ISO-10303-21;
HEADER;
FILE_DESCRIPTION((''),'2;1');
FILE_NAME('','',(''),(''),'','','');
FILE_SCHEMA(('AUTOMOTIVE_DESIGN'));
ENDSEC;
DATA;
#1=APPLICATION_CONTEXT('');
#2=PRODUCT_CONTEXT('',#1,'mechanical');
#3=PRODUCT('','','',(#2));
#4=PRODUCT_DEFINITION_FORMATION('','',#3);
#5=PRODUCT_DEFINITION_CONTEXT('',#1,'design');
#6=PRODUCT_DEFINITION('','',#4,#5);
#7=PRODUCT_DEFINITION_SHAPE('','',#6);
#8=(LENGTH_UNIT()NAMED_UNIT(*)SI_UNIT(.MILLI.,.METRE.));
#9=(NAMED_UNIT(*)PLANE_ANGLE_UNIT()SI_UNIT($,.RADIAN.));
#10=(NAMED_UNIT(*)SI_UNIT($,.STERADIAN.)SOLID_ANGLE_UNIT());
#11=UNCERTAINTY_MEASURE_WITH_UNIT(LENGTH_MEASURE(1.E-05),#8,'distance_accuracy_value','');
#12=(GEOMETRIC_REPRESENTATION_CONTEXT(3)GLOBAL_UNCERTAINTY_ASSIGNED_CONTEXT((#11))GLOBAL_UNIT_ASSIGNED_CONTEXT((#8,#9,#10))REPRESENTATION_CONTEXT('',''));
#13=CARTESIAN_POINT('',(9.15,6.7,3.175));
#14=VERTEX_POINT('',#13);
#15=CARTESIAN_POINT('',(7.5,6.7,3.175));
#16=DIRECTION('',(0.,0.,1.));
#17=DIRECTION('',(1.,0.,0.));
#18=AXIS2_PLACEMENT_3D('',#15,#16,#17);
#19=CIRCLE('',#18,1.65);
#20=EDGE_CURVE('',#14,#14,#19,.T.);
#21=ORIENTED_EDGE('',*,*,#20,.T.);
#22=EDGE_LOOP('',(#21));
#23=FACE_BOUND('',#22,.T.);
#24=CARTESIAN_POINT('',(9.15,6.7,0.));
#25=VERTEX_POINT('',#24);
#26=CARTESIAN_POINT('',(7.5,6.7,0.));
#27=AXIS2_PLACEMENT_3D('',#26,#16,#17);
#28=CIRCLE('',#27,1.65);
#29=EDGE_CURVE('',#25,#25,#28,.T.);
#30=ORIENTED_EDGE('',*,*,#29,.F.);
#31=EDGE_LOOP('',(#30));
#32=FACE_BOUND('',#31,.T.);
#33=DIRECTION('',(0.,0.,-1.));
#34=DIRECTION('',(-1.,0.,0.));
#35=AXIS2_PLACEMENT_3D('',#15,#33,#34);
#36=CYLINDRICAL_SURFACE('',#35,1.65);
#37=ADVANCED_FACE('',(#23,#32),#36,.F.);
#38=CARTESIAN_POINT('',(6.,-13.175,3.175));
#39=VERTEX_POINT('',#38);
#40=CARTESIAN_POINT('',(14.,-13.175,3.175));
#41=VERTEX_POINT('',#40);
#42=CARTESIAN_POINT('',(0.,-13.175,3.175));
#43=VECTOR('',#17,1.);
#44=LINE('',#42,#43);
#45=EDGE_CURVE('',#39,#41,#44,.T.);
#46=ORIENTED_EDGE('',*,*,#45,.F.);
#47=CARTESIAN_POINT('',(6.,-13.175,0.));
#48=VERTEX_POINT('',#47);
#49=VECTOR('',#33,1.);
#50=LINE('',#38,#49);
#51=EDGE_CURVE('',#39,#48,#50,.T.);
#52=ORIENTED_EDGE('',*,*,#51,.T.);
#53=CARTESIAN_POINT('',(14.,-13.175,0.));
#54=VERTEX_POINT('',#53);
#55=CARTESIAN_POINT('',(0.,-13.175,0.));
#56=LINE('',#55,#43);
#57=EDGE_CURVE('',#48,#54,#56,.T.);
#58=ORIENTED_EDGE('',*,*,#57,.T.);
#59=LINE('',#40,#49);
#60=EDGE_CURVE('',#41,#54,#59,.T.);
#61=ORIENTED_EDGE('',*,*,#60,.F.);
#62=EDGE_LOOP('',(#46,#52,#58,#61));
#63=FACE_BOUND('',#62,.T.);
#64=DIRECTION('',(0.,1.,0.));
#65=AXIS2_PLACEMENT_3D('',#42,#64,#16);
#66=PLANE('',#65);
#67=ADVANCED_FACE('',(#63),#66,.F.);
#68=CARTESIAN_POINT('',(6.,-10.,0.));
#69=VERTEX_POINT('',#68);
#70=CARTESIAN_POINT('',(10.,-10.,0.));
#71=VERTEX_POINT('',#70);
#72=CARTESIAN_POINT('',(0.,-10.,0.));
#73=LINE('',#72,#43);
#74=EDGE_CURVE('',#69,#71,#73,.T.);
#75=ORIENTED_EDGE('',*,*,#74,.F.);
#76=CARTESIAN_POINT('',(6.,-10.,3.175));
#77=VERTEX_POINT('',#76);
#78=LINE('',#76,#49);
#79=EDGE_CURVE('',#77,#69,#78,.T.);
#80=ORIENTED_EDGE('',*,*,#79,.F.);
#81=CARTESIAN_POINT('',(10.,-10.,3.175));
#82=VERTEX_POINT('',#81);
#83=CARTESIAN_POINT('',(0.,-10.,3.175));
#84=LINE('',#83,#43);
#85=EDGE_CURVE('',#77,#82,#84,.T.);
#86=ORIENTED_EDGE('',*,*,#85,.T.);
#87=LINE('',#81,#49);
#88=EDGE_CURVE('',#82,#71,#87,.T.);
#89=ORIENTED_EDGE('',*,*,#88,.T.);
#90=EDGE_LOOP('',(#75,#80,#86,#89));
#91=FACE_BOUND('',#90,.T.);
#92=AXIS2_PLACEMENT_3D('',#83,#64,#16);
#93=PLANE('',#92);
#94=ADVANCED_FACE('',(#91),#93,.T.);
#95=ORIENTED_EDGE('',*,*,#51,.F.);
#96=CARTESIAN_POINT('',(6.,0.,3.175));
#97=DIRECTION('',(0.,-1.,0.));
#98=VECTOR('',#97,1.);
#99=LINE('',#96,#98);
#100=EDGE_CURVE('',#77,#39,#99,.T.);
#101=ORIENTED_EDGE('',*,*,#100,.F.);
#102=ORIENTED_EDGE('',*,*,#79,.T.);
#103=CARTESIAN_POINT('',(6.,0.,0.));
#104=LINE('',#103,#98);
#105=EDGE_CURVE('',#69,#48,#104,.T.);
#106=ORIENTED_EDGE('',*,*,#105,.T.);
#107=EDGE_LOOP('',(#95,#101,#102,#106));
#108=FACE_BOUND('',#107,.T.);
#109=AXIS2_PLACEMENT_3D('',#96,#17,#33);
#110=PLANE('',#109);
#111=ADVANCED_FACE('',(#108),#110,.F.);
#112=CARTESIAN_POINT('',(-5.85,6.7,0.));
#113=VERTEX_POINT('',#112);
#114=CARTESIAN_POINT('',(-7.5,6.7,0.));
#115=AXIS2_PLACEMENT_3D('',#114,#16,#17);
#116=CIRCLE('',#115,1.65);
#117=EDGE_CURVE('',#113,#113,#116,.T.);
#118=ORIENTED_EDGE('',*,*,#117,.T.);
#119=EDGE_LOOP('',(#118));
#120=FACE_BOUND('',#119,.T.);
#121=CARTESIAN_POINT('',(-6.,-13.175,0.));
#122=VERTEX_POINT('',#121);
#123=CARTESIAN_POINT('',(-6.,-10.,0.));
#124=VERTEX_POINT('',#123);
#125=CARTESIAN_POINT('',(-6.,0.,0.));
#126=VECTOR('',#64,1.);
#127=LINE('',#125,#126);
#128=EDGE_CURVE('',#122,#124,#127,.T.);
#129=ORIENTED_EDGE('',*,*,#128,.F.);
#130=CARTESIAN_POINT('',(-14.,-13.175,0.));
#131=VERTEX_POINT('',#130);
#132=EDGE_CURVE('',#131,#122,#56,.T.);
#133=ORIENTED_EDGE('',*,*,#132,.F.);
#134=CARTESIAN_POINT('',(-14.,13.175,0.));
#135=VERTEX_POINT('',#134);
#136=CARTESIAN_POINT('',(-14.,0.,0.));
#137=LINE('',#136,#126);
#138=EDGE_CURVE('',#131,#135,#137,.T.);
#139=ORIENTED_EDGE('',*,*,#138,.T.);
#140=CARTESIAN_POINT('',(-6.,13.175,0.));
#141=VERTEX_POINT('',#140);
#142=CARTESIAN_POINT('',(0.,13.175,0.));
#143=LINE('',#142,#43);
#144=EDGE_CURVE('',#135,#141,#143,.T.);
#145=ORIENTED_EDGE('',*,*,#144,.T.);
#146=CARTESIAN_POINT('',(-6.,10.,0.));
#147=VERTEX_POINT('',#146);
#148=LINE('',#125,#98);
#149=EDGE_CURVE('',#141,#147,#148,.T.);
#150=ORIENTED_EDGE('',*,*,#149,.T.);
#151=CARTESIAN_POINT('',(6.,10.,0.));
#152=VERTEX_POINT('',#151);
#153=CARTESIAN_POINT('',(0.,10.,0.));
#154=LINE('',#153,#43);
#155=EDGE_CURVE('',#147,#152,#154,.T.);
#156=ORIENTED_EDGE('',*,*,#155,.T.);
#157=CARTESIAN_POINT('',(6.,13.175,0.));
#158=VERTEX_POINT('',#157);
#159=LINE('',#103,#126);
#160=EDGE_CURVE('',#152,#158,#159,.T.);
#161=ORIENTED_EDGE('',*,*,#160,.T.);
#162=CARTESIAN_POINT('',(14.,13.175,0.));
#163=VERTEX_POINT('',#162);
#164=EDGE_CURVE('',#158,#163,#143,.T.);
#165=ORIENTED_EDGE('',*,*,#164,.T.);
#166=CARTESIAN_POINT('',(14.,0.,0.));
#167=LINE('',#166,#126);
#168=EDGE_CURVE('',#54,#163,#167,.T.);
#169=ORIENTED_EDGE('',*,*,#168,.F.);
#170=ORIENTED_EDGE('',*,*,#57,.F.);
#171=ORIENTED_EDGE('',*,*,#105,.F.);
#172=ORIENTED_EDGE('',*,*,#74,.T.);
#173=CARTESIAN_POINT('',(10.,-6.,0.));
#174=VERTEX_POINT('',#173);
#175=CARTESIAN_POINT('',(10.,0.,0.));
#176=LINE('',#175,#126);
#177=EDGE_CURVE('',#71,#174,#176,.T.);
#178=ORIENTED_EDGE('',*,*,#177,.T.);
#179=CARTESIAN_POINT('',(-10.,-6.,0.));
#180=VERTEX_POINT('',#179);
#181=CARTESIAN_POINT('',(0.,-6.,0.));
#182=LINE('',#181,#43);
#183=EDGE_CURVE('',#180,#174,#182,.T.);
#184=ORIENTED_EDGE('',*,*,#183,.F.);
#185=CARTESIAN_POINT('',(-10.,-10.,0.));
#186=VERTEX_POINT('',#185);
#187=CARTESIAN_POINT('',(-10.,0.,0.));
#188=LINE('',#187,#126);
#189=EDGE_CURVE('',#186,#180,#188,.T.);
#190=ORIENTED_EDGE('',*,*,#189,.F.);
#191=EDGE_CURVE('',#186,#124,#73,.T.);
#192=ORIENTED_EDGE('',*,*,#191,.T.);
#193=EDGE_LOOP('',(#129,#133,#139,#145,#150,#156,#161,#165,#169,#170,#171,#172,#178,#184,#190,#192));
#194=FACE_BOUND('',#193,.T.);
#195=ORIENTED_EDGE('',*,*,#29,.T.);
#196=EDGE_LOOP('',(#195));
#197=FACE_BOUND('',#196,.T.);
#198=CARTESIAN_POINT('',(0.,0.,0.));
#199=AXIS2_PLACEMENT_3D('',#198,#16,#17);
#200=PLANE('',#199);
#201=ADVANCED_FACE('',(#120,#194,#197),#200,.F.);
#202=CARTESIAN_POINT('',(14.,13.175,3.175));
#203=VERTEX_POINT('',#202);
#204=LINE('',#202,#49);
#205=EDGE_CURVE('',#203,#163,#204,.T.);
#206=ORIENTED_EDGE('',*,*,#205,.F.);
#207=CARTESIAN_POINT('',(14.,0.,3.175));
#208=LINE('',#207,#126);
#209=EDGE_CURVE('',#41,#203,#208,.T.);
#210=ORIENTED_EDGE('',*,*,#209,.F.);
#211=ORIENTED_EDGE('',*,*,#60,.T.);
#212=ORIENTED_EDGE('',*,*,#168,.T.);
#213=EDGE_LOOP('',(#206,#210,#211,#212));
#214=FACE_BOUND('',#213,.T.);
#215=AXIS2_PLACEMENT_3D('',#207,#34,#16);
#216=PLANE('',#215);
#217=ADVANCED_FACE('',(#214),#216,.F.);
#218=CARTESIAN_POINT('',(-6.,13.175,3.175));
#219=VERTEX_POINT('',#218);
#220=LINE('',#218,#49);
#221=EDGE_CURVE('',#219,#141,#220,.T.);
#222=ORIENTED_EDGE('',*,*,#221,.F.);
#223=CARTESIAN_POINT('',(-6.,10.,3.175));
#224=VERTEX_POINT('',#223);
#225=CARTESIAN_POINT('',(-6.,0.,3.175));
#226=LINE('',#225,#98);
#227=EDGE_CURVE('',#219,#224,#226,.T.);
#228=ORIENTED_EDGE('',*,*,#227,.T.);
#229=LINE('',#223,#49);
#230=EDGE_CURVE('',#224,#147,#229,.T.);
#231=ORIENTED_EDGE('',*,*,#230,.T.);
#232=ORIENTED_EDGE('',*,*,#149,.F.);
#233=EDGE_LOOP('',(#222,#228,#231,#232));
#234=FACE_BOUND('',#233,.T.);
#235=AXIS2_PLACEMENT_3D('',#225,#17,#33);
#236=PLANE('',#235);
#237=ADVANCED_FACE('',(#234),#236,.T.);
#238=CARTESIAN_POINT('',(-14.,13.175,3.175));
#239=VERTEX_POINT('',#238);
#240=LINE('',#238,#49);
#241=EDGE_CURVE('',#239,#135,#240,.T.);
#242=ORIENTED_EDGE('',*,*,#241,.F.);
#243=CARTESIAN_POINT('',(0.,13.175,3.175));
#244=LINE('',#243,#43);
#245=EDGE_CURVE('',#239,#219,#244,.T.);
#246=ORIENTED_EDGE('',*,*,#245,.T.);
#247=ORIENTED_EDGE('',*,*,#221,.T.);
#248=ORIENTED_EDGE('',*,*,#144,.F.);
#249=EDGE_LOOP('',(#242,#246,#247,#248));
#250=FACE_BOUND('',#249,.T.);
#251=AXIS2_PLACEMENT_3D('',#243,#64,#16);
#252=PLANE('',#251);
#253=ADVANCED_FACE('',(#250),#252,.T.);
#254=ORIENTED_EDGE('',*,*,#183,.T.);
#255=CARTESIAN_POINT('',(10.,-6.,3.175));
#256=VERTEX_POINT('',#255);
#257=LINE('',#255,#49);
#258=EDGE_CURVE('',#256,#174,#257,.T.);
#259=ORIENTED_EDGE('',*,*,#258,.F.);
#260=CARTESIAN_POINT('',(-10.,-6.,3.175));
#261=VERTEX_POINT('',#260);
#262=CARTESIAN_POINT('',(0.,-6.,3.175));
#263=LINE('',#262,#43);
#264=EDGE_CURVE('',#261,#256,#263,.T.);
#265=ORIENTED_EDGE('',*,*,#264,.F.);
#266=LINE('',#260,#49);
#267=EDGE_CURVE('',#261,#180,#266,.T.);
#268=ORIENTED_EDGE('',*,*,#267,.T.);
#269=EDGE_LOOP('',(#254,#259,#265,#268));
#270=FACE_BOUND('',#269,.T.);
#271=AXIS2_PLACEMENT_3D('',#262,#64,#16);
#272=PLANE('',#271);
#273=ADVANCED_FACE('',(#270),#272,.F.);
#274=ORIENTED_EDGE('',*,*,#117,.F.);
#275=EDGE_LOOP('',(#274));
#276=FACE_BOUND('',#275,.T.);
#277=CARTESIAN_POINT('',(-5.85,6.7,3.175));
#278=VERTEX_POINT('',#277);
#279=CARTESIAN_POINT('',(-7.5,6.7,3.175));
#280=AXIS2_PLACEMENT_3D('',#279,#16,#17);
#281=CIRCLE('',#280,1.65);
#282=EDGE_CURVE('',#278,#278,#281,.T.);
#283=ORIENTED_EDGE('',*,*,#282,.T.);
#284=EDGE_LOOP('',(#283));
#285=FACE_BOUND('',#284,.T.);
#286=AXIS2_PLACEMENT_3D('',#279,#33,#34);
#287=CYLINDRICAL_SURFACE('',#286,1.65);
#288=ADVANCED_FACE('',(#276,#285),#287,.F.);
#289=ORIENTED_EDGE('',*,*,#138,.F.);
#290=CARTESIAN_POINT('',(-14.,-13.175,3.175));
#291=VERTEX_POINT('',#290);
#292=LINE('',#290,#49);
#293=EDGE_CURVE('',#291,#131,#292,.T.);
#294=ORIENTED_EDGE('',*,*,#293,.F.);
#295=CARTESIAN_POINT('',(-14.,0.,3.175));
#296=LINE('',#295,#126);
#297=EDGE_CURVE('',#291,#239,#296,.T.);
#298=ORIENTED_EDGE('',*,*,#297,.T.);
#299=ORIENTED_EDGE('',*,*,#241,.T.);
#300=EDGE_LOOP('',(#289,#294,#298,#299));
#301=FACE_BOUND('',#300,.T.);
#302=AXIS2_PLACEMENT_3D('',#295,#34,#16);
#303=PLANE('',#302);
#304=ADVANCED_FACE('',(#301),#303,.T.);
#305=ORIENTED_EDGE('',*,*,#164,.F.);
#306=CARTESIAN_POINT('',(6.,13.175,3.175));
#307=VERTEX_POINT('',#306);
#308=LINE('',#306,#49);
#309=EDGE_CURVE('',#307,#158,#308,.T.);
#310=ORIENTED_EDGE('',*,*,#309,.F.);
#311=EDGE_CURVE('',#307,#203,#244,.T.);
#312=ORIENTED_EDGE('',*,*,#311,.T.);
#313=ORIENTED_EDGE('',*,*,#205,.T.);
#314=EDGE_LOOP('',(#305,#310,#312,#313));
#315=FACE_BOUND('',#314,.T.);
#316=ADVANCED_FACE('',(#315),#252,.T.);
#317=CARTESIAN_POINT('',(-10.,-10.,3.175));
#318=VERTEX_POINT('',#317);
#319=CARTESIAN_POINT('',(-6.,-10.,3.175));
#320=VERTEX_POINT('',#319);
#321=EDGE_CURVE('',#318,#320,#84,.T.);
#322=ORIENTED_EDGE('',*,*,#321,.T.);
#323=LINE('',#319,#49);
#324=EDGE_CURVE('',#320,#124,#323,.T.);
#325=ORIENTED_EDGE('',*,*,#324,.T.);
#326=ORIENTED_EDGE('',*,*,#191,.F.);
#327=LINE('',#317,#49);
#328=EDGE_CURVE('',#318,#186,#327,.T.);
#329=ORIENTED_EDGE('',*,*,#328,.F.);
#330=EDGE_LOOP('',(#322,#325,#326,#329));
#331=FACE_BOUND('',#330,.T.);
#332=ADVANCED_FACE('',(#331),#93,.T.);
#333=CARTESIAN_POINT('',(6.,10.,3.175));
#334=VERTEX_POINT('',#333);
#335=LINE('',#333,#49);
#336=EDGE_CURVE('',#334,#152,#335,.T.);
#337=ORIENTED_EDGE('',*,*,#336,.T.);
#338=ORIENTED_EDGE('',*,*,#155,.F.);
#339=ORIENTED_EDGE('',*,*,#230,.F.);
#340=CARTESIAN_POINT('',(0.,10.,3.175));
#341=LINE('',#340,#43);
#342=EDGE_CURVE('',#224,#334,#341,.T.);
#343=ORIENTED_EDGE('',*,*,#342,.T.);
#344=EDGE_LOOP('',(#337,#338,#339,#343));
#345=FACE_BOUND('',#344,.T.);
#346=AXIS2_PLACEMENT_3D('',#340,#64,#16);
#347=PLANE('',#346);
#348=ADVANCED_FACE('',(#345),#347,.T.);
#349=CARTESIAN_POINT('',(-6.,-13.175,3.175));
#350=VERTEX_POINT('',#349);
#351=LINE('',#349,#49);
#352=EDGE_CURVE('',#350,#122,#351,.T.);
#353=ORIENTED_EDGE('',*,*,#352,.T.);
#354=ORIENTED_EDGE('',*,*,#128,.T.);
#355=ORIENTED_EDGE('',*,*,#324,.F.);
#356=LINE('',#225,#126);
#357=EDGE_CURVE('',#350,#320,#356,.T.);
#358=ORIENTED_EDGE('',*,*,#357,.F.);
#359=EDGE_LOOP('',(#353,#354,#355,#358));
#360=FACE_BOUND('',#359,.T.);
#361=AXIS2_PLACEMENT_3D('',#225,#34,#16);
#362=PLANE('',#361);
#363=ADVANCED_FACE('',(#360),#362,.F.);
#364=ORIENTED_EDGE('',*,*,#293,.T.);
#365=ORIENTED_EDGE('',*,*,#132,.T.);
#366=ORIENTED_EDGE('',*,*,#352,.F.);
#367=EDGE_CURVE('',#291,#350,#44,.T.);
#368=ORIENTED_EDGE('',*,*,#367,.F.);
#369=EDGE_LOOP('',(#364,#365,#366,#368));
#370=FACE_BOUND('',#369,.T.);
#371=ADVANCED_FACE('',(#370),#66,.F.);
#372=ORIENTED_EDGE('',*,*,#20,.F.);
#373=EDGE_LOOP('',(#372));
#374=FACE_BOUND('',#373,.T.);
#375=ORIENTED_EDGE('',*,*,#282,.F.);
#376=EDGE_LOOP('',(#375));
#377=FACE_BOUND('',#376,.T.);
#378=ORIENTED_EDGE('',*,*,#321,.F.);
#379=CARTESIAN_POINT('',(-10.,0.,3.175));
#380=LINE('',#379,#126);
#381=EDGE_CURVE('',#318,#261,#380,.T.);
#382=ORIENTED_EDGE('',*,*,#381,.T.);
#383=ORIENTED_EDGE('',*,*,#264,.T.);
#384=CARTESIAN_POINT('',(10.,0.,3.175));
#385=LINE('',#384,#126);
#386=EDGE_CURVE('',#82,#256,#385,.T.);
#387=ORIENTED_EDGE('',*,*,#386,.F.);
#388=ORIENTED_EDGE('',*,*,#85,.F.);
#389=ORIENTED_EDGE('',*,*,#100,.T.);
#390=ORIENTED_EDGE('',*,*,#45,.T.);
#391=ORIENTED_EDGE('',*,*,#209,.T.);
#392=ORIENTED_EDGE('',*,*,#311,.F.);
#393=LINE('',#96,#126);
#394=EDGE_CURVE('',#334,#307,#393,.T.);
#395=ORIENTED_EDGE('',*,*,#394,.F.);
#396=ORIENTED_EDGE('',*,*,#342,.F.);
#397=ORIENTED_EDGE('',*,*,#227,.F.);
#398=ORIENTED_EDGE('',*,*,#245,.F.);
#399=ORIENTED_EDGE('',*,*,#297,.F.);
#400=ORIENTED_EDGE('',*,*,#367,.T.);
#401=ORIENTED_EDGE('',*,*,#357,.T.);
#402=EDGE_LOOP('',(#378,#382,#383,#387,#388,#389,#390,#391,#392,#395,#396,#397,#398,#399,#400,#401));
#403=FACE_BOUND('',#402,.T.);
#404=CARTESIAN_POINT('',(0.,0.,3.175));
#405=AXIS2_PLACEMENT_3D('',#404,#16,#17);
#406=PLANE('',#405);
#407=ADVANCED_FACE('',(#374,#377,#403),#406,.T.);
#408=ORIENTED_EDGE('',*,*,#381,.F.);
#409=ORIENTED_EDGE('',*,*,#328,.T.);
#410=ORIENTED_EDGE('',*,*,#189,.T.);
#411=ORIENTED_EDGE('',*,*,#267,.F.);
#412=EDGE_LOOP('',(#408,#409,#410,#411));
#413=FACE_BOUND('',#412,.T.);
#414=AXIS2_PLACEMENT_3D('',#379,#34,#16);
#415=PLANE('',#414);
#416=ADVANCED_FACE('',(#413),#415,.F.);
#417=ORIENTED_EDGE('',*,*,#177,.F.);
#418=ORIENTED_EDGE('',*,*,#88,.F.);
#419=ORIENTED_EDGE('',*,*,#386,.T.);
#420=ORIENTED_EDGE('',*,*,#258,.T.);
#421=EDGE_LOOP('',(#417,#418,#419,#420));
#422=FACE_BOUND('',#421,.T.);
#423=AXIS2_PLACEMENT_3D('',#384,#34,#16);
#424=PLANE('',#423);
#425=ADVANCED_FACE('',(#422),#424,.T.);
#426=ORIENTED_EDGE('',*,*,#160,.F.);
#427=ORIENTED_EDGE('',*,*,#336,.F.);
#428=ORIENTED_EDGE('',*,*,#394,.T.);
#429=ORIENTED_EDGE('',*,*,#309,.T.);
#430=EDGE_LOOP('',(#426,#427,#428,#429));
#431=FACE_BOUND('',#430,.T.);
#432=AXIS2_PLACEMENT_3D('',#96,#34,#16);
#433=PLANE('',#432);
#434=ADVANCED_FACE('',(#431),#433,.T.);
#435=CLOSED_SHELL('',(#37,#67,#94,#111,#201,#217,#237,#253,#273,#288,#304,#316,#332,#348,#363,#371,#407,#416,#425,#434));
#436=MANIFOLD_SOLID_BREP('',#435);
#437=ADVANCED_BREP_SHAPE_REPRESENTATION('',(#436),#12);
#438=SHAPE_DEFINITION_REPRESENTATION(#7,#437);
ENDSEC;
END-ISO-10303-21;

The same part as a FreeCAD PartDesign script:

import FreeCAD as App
import Part
import Sketcher
from FreeCAD import Vector
Q = App.Units.Quantity


def add_polygon(sketch, points):
    """Adds a closed chain of lines whose ends are joined by coincident constraints."""
    first, n = sketch.GeometryCount, len(points)
    for a, b in zip(points, points[1:] + points[:1]):
        sketch.addGeometry(Part.LineSegment(App.Vector(*a, 0), App.Vector(*b, 0)), False)
    for i in range(n):
        sketch.addConstraint(Sketcher.Constraint("Coincident", first + i, 2, first + (i + 1) % n, 1))

doc = App.newDocument("Part")
body = doc.addObject("PartDesign::Body", "Body")

sketch1 = body.newObject("Sketcher::SketchObject", "Sketch")
sketch1.AttachmentSupport = (doc.getObject("XY_Plane"), [""])
sketch1.MapMode = "FlatFace"
add_polygon(sketch1, [(-14, 13.175), (-14, -13.175), (-6, -13.175), (-6, -10), (-10, -10), (-10, -6), (10, -6), (10, -10), (6, -10), (6, -13.175), (14, -13.175), (14, 13.175), (6, 13.175), (6, 10), (-6, 10), (-6, 13.175)])
sketch1.addGeometry(Part.Circle(Vector(-7.5, 6.7, 0), Vector(0, 0, 1), 1.65), False)
sketch1.addGeometry(Part.Circle(Vector(7.5, 6.7, 0), Vector(0, 0, 1), 1.65), False)
sketch1.addConstraint([
    Sketcher.Constraint("Vertical", 0),
    Sketcher.Constraint("Horizontal", 1),
    Sketcher.Constraint("Vertical", 2),
    Sketcher.Constraint("Horizontal", 3),
    Sketcher.Constraint("Vertical", 4),
    Sketcher.Constraint("Horizontal", 5),
    Sketcher.Constraint("Vertical", 6),
    Sketcher.Constraint("Horizontal", 7),
    Sketcher.Constraint("Vertical", 8),
    Sketcher.Constraint("Horizontal", 9),
    Sketcher.Constraint("Vertical", 10),
    Sketcher.Constraint("Horizontal", 11),
    Sketcher.Constraint("Vertical", 12),
    Sketcher.Constraint("Horizontal", 13),
    Sketcher.Constraint("Vertical", 14),
    Sketcher.Constraint("Horizontal", 15),
    Sketcher.Constraint("Equal", 16, 17),
    Sketcher.Constraint("Symmetric", 0, 2, 10, 2, -1, 1),
    Sketcher.Constraint("Symmetric", 2, 2, 12, 2, -1, 1),
    Sketcher.Constraint("Symmetric", 7, 2, 13, 2, -1, 1),
    Sketcher.Constraint("Symmetric", 16, 3, 17, 3, -2),
    Sketcher.Constraint("Symmetric", 1, 2, 8, 2, -2),
    Sketcher.Constraint("Horizontal", 11, 2, 14, 2),
    Sketcher.Constraint("Equal", 3, 7),
    Sketcher.Constraint("Equal", 7, 4),
    Sketcher.Constraint("Diameter", 16, Q("3.3 mm")),
    Sketcher.Constraint("DistanceX", 1, 1, 1, 2, Q("8 mm")),
    Sketcher.Constraint("DistanceX", 3, 2, 3, 1, Q("4 mm")),
    Sketcher.Constraint("DistanceX", 5, 1, 5, 2, Q("20 mm")),
    Sketcher.Constraint("DistanceY", 2, 2, -1, 1, Q("10 mm")),
    Sketcher.Constraint("DistanceX", 16, 3, 17, 3, Q("15 mm")),
    Sketcher.Constraint("DistanceY", 0, 2, 0, 1, Q("26.35 mm")),
    Sketcher.Constraint("DistanceY", -1, 1, 16, 3, Q("6.7 mm")),
])
pad1 = body.newObject("PartDesign::Pad", "Pad")
pad1.Profile = sketch1
pad1.Length = 3.175

doc.recompute()
